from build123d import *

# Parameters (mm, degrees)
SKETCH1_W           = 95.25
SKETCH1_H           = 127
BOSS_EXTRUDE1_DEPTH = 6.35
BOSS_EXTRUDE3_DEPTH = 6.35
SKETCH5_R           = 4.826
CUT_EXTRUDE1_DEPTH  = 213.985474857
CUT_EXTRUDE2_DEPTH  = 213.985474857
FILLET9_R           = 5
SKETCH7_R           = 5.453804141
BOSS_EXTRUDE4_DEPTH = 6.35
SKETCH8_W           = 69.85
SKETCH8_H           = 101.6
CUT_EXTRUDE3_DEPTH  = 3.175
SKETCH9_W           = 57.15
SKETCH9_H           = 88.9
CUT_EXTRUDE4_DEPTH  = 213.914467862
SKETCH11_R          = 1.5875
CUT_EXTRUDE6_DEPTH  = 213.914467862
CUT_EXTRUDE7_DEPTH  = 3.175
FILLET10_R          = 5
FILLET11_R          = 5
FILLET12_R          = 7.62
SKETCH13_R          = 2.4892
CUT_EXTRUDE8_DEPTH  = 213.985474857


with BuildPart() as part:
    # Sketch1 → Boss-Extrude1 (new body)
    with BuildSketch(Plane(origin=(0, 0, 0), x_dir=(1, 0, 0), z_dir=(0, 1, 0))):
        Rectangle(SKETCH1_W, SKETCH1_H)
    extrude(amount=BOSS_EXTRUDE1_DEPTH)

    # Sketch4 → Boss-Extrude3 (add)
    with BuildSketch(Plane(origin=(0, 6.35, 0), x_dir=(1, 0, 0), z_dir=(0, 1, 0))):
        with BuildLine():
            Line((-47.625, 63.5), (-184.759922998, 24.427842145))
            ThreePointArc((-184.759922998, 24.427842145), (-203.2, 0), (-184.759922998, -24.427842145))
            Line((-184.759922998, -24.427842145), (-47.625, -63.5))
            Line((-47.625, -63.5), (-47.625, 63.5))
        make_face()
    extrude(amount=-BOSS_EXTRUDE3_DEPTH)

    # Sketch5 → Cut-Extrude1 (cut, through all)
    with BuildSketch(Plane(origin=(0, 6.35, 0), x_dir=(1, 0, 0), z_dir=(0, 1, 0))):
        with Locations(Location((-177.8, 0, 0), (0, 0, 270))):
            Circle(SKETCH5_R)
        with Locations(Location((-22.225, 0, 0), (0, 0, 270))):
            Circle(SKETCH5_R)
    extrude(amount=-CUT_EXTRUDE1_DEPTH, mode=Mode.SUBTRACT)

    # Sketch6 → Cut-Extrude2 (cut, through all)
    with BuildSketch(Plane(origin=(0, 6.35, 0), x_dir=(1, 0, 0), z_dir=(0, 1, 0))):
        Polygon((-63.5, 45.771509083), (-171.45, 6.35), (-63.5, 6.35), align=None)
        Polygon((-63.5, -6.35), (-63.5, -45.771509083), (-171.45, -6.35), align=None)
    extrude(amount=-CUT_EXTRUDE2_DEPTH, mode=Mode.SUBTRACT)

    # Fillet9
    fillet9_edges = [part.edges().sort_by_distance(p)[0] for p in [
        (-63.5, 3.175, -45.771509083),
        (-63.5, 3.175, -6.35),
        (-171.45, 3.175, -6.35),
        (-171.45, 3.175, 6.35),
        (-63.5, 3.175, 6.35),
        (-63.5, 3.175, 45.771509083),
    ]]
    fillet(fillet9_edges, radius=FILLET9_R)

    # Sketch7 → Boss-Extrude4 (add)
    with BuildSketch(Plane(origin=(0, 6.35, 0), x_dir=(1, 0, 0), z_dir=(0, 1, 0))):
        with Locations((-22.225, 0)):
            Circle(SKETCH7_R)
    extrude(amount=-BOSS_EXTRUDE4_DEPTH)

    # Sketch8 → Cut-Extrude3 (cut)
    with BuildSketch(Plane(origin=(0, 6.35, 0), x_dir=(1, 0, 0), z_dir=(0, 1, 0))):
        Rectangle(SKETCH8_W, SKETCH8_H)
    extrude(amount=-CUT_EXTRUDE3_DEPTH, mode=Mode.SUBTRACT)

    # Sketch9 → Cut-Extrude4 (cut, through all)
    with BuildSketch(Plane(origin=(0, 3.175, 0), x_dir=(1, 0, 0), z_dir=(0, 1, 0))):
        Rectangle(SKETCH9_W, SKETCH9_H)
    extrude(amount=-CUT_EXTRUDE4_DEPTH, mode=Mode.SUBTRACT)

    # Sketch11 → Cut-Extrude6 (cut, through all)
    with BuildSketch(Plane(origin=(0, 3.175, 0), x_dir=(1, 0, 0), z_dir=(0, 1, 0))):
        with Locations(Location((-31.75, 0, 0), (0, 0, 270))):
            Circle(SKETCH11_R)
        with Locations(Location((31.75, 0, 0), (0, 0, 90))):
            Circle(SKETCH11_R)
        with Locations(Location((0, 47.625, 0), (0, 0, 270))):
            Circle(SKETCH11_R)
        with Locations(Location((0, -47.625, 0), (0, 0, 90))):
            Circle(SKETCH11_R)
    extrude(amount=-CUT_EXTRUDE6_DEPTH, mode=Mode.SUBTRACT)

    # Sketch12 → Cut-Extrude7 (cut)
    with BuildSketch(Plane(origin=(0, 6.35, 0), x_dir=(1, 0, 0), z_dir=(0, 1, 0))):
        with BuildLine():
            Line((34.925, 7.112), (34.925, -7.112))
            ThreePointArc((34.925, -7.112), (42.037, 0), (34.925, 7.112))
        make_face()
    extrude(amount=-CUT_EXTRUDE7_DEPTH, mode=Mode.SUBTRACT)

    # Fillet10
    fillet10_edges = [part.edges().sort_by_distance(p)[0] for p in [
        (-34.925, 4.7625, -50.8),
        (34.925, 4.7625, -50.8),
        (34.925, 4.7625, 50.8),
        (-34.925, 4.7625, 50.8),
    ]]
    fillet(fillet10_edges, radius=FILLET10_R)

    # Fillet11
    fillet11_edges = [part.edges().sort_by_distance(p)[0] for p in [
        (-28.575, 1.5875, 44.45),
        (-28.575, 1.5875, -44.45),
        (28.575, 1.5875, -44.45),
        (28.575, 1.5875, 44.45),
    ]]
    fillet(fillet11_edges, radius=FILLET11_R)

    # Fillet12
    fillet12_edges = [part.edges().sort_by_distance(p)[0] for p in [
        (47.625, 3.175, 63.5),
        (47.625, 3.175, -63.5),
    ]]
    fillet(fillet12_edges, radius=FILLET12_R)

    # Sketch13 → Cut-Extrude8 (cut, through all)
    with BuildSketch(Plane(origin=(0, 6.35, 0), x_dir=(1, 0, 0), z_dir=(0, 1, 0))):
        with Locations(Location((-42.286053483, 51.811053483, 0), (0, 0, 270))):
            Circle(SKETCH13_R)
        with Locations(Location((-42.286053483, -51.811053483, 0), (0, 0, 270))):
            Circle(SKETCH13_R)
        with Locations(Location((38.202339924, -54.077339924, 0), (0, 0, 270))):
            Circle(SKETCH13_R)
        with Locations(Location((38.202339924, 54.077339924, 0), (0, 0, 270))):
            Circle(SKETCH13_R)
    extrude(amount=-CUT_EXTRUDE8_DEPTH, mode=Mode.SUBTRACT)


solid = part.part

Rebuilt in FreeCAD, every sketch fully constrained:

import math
import FreeCAD as App
import Part
import Sketcher
Q = App.Units.Quantity


def edges_at(feature, points):
    """Names of the edges that pass closest to the given points."""
    edges = feature.Shape.Edges
    near = lambda p: min(range(len(edges)), key=lambda i: edges[i].distToShape(Part.Vertex(*p))[0])
    return sorted({f"Edge{near(p) + 1}" for p in points})

doc = App.newDocument("Part")
body = doc.addObject("PartDesign::Body", "Body")

# Sketch on XZ plane
sketch1 = doc.addObject("Sketcher::SketchObject", "Sketch")
body.addObject(sketch1)
sketch1.AttachmentSupport = (doc.XZ_Plane, [""])
sketch1.MapMode = "FlatFace"
sketch1.addGeometry([
    Part.LineSegment(App.Vector(-48, -64, 0), App.Vector(-48, 64, 0)),
    Part.LineSegment(App.Vector(-48, 64, 0), App.Vector(48, 64, 0)),
    Part.LineSegment(App.Vector(48, 64, 0), App.Vector(48, -64, 0)),
    Part.LineSegment(App.Vector(48, -64, 0), App.Vector(-48, -64, 0)),
], False)
sketch1.addConstraint([
    Sketcher.Constraint("Coincident", 0, 2, 1, 1),
    Sketcher.Constraint("Coincident", 1, 2, 2, 1),
    Sketcher.Constraint("Coincident", 2, 2, 3, 1),
    Sketcher.Constraint("Coincident", 3, 2, 0, 1),
    Sketcher.Constraint("Vertical", 0),
    Sketcher.Constraint("Horizontal", 1),
    Sketcher.Constraint("Vertical", 2),
    Sketcher.Constraint("Horizontal", 3),
    Sketcher.Constraint("Symmetric", 0, 2, 2, 2, -1, 1),
    Sketcher.Constraint("DistanceY", 0, 1, 0, 2, Q("5 in")),
    Sketcher.Constraint("DistanceX", 1, 1, 1, 2, Q("3.75 in")),
])
pad1 = doc.addObject("PartDesign::Pad", "Pad")
body.addObject(pad1)
pad1.Profile = sketch1
pad1.Length = Q("0.25 in")
pad1.Reversed = True

# Sketch on XZ plane
sketch2 = doc.addObject("Sketcher::SketchObject", "Sketch001")
body.addObject(sketch2)
sketch2.AttachmentSupport = (doc.XZ_Plane, [""])
sketch2.MapMode = "FlatFace"
sketch2.AttachmentOffset = App.Placement(App.Vector(0, 0, -0.25 * 25.4), App.Rotation())
sketch2.addGeometry([
    Part.LineSegment(App.Vector(-48, -64, 0), App.Vector(-185, -24, 0)),
    Part.ArcOfCircle(Part.Circle(App.Vector(-178, 0, 0), App.Vector(0, 0, 1), 25), math.radians(106), math.radians(254)),
    Part.LineSegment(App.Vector(-185, 24, 0), App.Vector(-48, 64, 0)),
    Part.LineSegment(App.Vector(-48, 64, 0), App.Vector(-48, -64, 0)),
], False)
sketch2.addConstraint([
    Sketcher.Constraint("Tangent", 0, 2, 1, 2),
    Sketcher.Constraint("Tangent", 1, 1, 2, 1),
    Sketcher.Constraint("Coincident", 2, 2, 3, 1),
    Sketcher.Constraint("Coincident", 3, 2, 0, 1),
    Sketcher.Constraint("Vertical", 3),
    Sketcher.Constraint("Symmetric", 0, 2, 1, 1, -1),
    Sketcher.Constraint("Radius", 1, Q("1 in")),
    Sketcher.Constraint("DistanceY", 3, 2, 3, 1, Q("5 in")),
    Sketcher.Constraint("DistanceX", 1, 3, -1, 1, Q("7 in")),
    Sketcher.Constraint("DistanceX", 2, 2, -1, 1, Q("1.875 in")),
])
pad2 = doc.addObject("PartDesign::Pad", "Pad001")
body.addObject(pad2)
pad2.Profile = sketch2
pad2.Length = Q("0.25 in")

# Sketch on XZ plane
sketch3 = doc.addObject("Sketcher::SketchObject", "Sketch002")
body.addObject(sketch3)
sketch3.AttachmentSupport = (doc.XZ_Plane, [""])
sketch3.MapMode = "FlatFace"
sketch3.AttachmentOffset = App.Placement(App.Vector(0, 0, -0.25 * 25.4), App.Rotation())
sketch3.addGeometry([
    Part.Circle(App.Vector(-177.8, 0, 0), App.Vector(0, 0, 1), 4.8),
    Part.Circle(App.Vector(-22.2, 0, 0), App.Vector(0, 0, 1), 4.8),
], False)
sketch3.addConstraint([
    Sketcher.Constraint("Equal", 0, 1),
    Sketcher.Constraint("PointOnObject", 0, 3, -1),
    Sketcher.Constraint("PointOnObject", 1, 3, -1),
    Sketcher.Constraint("Diameter", 0, Q("0.38 in")),
    Sketcher.Constraint("DistanceX", 0, 3, -1, 1, Q("7 in")),
    Sketcher.Constraint("DistanceX", 1, 3, -1, 1, Q("0.875 in")),
])
pocket1 = doc.addObject("PartDesign::Pocket", "Pocket")
body.addObject(pocket1)
pocket1.Profile = sketch3
pocket1.Type = "ThroughAll"
pocket1.Reversed = True

# Sketch on XZ plane
sketch4 = doc.addObject("Sketcher::SketchObject", "Sketch003")
body.addObject(sketch4)
sketch4.AttachmentSupport = (doc.XZ_Plane, [""])
sketch4.MapMode = "FlatFace"
sketch4.AttachmentOffset = App.Placement(App.Vector(0, 0, -0.25 * 25.4), App.Rotation())
sketch4.addGeometry([
    Part.LineSegment(App.Vector(-64, -46, 0), App.Vector(-171, -6, 0)),  # 0
    Part.LineSegment(App.Vector(-171, -6, 0), App.Vector(-64, -6, 0)),  # 1
    Part.LineSegment(App.Vector(-64, -6, 0), App.Vector(-64, -46, 0)),  # 2
    Part.LineSegment(App.Vector(-64, 46, 0), App.Vector(-64, 6, 0)),  # 3
    Part.LineSegment(App.Vector(-64, 6, 0), App.Vector(-171, 6, 0)),  # 4
    Part.LineSegment(App.Vector(-171, 6, 0), App.Vector(-64, 46, 0)),  # 5
], False)
sketch4.addConstraint([
    Sketcher.Constraint("Coincident", 0, 2, 1, 1),
    Sketcher.Constraint("Coincident", 1, 2, 2, 1),
    Sketcher.Constraint("Coincident", 2, 2, 0, 1),
    Sketcher.Constraint("Coincident", 3, 2, 4, 1),
    Sketcher.Constraint("Coincident", 4, 2, 5, 1),
    Sketcher.Constraint("Coincident", 5, 2, 3, 1),
    Sketcher.Constraint("Horizontal", 1),
    Sketcher.Constraint("Vertical", 2),
    Sketcher.Constraint("Vertical", 3),
    Sketcher.Constraint("Horizontal", 4),
    Sketcher.Constraint("Symmetric", 1, 2, 3, 2, -1),
    Sketcher.Constraint("Vertical", 0, 2, 4, 2),
    Sketcher.Constraint("Equal", 2, 3),
    Sketcher.Constraint("DistanceX", 1, 1, 1, 2, Q("4.25 in")),
    Sketcher.Constraint("DistanceX", 1, 2, -1, 1, Q("2.5 in")),
    Sketcher.Constraint("DistanceY", 1, 2, 3, 2, Q("0.5 in")),
    Sketcher.Constraint("DistanceY", 2, 2, 2, 1, 39.421509),
])
pocket2 = doc.addObject("PartDesign::Pocket", "Pocket001")
body.addObject(pocket2)
pocket2.Profile = sketch4
pocket2.Type = "ThroughAll"
pocket2.Reversed = True
doc.recompute()

fillet = doc.addObject("PartDesign::Fillet", "Fillet")
body.addObject(fillet)
fillet.Base = (pocket2, edges_at(pocket2, [
    (-63.5, 3.175, -45.772),
    (-63.5, 3.175, -6.35),
    (-171.45, 3.175, -6.35),
    (-171.45, 3.175, 6.35),
    (-63.5, 3.175, 6.35),
    (-63.5, 3.175, 45.772),
]))
fillet.Radius = 5

# Sketch on XZ plane
sketch5 = doc.addObject("Sketcher::SketchObject", "Sketch004")
body.addObject(sketch5)
sketch5.AttachmentSupport = (doc.XZ_Plane, [""])
sketch5.MapMode = "FlatFace"
sketch5.AttachmentOffset = App.Placement(App.Vector(0, 0, -0.25 * 25.4), App.Rotation())
sketch5.addGeometry(Part.Circle(App.Vector(-22, 0, 0), App.Vector(0, 0, 1), 5), False)
sketch5.addConstraint([
    Sketcher.Constraint("PointOnObject", 0, 3, -1),
    Sketcher.Constraint("Diameter", 0, 10.907608),
    Sketcher.Constraint("DistanceX", 0, 3, -1, 1, Q("0.875 in")),
])
pad3 = doc.addObject("PartDesign::Pad", "Pad002")
body.addObject(pad3)
pad3.Profile = sketch5
pad3.Length = Q("0.25 in")

# Sketch on XZ plane
sketch6 = doc.addObject("Sketcher::SketchObject", "Sketch005")
body.addObject(sketch6)
sketch6.AttachmentSupport = (doc.XZ_Plane, [""])
sketch6.MapMode = "FlatFace"
sketch6.AttachmentOffset = App.Placement(App.Vector(0, 0, -0.25 * 25.4), App.Rotation())
sketch6.addGeometry([
    Part.LineSegment(App.Vector(-35, -51, 0), App.Vector(-35, 51, 0)),
    Part.LineSegment(App.Vector(-35, 51, 0), App.Vector(35, 51, 0)),
    Part.LineSegment(App.Vector(35, 51, 0), App.Vector(35, -51, 0)),
    Part.LineSegment(App.Vector(35, -51, 0), App.Vector(-35, -51, 0)),
], False)
sketch6.addConstraint([
    Sketcher.Constraint("Coincident", 0, 2, 1, 1),
    Sketcher.Constraint("Coincident", 1, 2, 2, 1),
    Sketcher.Constraint("Coincident", 2, 2, 3, 1),
    Sketcher.Constraint("Coincident", 3, 2, 0, 1),
    Sketcher.Constraint("Vertical", 0),
    Sketcher.Constraint("Horizontal", 1),
    Sketcher.Constraint("Vertical", 2),
    Sketcher.Constraint("Horizontal", 3),
    Sketcher.Constraint("Symmetric", 0, 2, 2, 2, -1, 1),
    Sketcher.Constraint("DistanceY", 0, 1, 0, 2, Q("4 in")),
    Sketcher.Constraint("DistanceX", 1, 1, 1, 2, Q("2.75 in")),
])
pocket3 = doc.addObject("PartDesign::Pocket", "Pocket002")
body.addObject(pocket3)
pocket3.Profile = sketch6
pocket3.Length = Q("0.125 in")
pocket3.Reversed = True

# Sketch on XZ plane
sketch7 = doc.addObject("Sketcher::SketchObject", "Sketch006")
body.addObject(sketch7)
sketch7.AttachmentSupport = (doc.XZ_Plane, [""])
sketch7.MapMode = "FlatFace"
sketch7.AttachmentOffset = App.Placement(App.Vector(0, 0, -0.125 * 25.4), App.Rotation())
sketch7.addGeometry([
    Part.LineSegment(App.Vector(-29, -44, 0), App.Vector(-29, 44, 0)),
    Part.LineSegment(App.Vector(-29, 44, 0), App.Vector(29, 44, 0)),
    Part.LineSegment(App.Vector(29, 44, 0), App.Vector(29, -44, 0)),
    Part.LineSegment(App.Vector(29, -44, 0), App.Vector(-29, -44, 0)),
], False)
sketch7.addConstraint([
    Sketcher.Constraint("Coincident", 0, 2, 1, 1),
    Sketcher.Constraint("Coincident", 1, 2, 2, 1),
    Sketcher.Constraint("Coincident", 2, 2, 3, 1),
    Sketcher.Constraint("Coincident", 3, 2, 0, 1),
    Sketcher.Constraint("Vertical", 0),
    Sketcher.Constraint("Horizontal", 1),
    Sketcher.Constraint("Vertical", 2),
    Sketcher.Constraint("Horizontal", 3),
    Sketcher.Constraint("Symmetric", 0, 2, 2, 2, -1, 1),
    Sketcher.Constraint("DistanceY", 0, 1, 0, 2, Q("3.5 in")),
    Sketcher.Constraint("DistanceX", 1, 1, 1, 2, Q("2.25 in")),
])
pocket4 = doc.addObject("PartDesign::Pocket", "Pocket003")
body.addObject(pocket4)
pocket4.Profile = sketch7
pocket4.Type = "ThroughAll"
pocket4.Reversed = True

# Sketch on XZ plane
sketch8 = doc.addObject("Sketcher::SketchObject", "Sketch007")
body.addObject(sketch8)
sketch8.AttachmentSupport = (doc.XZ_Plane, [""])
sketch8.MapMode = "FlatFace"
sketch8.AttachmentOffset = App.Placement(App.Vector(0, 0, -0.125 * 25.4), App.Rotation())
sketch8.addGeometry([
    Part.Circle(App.Vector(-31.8, 0, 0), App.Vector(0, 0, 1), 1.6),
    Part.Circle(App.Vector(31.8, 0, 0), App.Vector(0, 0, 1), 1.6),
    Part.Circle(App.Vector(0, -47.6, 0), App.Vector(0, 0, 1), 1.6),
    Part.Circle(App.Vector(0, 47.6, 0), App.Vector(0, 0, 1), 1.6),
], False)
sketch8.addConstraint([
    Sketcher.Constraint("Equal", 0, 1),
    Sketcher.Constraint("Equal", 1, 2),
    Sketcher.Constraint("Equal", 2, 3),
    Sketcher.Constraint("Symmetric", 0, 3, 1, 3, -1, 1),
    Sketcher.Constraint("Symmetric", 2, 3, 3, 3, -1, 1),
    Sketcher.Constraint("PointOnObject", 0, 3, -1),
    Sketcher.Constraint("PointOnObject", 2, 3, -2),
    Sketcher.Constraint("Diameter", 0, Q("0.125 in")),
    Sketcher.Constraint("DistanceX", 0, 3, 1, 3, Q("2.5 in")),
    Sketcher.Constraint("DistanceY", 2, 3, 3, 3, Q("3.75 in")),
])
pocket5 = doc.addObject("PartDesign::Pocket", "Pocket004")
body.addObject(pocket5)
pocket5.Profile = sketch8
pocket5.Type = "ThroughAll"
pocket5.Reversed = True

# Sketch on XZ plane
sketch9 = doc.addObject("Sketcher::SketchObject", "Sketch008")
body.addObject(sketch9)
sketch9.AttachmentSupport = (doc.XZ_Plane, [""])
sketch9.MapMode = "FlatFace"
sketch9.AttachmentOffset = App.Placement(App.Vector(0, 0, -0.25 * 25.4), App.Rotation())
sketch9.addGeometry([
    Part.LineSegment(App.Vector(35, -7, 0), App.Vector(35, 7, 0)),
    Part.ArcOfCircle(Part.Circle(App.Vector(35, 0, 0), App.Vector(0, 0, 1), 7), math.radians(-90), math.radians(90)),
], False)
sketch9.addConstraint([
    Sketcher.Constraint("Coincident", 0, 1, 1, 1),
    Sketcher.Constraint("Coincident", 1, 2, 0, 2),
    Sketcher.Constraint("Vertical", 0),
    Sketcher.Constraint("PointOnObject", 1, 3, -1),
    Sketcher.Constraint("Vertical", 1, 3, 0, 1),
    Sketcher.Constraint("Radius", 1, Q("0.28 in")),
    Sketcher.Constraint("DistanceX", -1, 1, 1, 3, Q("1.375 in")),
])
pocket6 = doc.addObject("PartDesign::Pocket", "Pocket005")
body.addObject(pocket6)
pocket6.Profile = sketch9
pocket6.Length = Q("0.125 in")
pocket6.Reversed = True
doc.recompute()

fillet2 = doc.addObject("PartDesign::Fillet", "Fillet001")
body.addObject(fillet2)
fillet2.Base = (pocket6, edges_at(pocket6, [
    (-34.925, 4.763, -50.8),
    (34.925, 4.763, -50.8),
    (34.925, 4.763, 50.8),
    (-34.925, 4.763, 50.8),
]))
fillet2.Radius = 5
doc.recompute()

fillet3 = doc.addObject("PartDesign::Fillet", "Fillet002")
body.addObject(fillet3)
fillet3.Base = (fillet2, edges_at(fillet2, [
    (-28.575, 1.587, 44.45),
    (-28.575, 1.587, -44.45),
    (28.575, 1.587, -44.45),
    (28.575, 1.587, 44.45),
]))
fillet3.Radius = 5
doc.recompute()

fillet4 = doc.addObject("PartDesign::Fillet", "Fillet003")
body.addObject(fillet4)
fillet4.Base = (fillet3, edges_at(fillet3, [(47.625, 3.175, 63.5), (47.625, 3.175, -63.5)]))
fillet4.Radius = Q("0.3 in")

# Sketch on XZ plane
sketch10 = doc.addObject("Sketcher::SketchObject", "Sketch009")
body.addObject(sketch10)
sketch10.AttachmentSupport = (doc.XZ_Plane, [""])
sketch10.MapMode = "FlatFace"
sketch10.AttachmentOffset = App.Placement(App.Vector(0, 0, -0.25 * 25.4), App.Rotation())
sketch10.addGeometry([
    Part.Circle(App.Vector(-42.3, -51.8, 0), App.Vector(0, 0, 1), 2.5),
    Part.Circle(App.Vector(-42.3, 51.8, 0), App.Vector(0, 0, 1), 2.5),
    Part.Circle(App.Vector(38.2, 54.1, 0), App.Vector(0, 0, 1), 2.5),
    Part.Circle(App.Vector(38.2, -54.1, 0), App.Vector(0, 0, 1), 2.5),
], False)
sketch10.addConstraint([
    Sketcher.Constraint("Equal", 0, 1),
    Sketcher.Constraint("Equal", 1, 2),
    Sketcher.Constraint("Equal", 2, 3),
    Sketcher.Constraint("Symmetric", 0, 3, 1, 3, -1),
    Sketcher.Constraint("Symmetric", 2, 3, 3, 3, -1),
    Sketcher.Constraint("Diameter", 0, Q("0.196 in")),
    Sketcher.Constraint("DistanceX", -1, 1, 2, 3, 38.20234),
    Sketcher.Constraint("DistanceY", -1, 1, 2, 3, 54.07734),
    Sketcher.Constraint("DistanceX", 0, 3, -1, 1, 42.286053),
    Sketcher.Constraint("DistanceY", 0, 3, -1, 1, 51.811053),
])
pocket7 = doc.addObject("PartDesign::Pocket", "Pocket006")
body.addObject(pocket7)
pocket7.Profile = sketch10
pocket7.Type = "ThroughAll"
pocket7.Reversed = True

doc.recompute()
